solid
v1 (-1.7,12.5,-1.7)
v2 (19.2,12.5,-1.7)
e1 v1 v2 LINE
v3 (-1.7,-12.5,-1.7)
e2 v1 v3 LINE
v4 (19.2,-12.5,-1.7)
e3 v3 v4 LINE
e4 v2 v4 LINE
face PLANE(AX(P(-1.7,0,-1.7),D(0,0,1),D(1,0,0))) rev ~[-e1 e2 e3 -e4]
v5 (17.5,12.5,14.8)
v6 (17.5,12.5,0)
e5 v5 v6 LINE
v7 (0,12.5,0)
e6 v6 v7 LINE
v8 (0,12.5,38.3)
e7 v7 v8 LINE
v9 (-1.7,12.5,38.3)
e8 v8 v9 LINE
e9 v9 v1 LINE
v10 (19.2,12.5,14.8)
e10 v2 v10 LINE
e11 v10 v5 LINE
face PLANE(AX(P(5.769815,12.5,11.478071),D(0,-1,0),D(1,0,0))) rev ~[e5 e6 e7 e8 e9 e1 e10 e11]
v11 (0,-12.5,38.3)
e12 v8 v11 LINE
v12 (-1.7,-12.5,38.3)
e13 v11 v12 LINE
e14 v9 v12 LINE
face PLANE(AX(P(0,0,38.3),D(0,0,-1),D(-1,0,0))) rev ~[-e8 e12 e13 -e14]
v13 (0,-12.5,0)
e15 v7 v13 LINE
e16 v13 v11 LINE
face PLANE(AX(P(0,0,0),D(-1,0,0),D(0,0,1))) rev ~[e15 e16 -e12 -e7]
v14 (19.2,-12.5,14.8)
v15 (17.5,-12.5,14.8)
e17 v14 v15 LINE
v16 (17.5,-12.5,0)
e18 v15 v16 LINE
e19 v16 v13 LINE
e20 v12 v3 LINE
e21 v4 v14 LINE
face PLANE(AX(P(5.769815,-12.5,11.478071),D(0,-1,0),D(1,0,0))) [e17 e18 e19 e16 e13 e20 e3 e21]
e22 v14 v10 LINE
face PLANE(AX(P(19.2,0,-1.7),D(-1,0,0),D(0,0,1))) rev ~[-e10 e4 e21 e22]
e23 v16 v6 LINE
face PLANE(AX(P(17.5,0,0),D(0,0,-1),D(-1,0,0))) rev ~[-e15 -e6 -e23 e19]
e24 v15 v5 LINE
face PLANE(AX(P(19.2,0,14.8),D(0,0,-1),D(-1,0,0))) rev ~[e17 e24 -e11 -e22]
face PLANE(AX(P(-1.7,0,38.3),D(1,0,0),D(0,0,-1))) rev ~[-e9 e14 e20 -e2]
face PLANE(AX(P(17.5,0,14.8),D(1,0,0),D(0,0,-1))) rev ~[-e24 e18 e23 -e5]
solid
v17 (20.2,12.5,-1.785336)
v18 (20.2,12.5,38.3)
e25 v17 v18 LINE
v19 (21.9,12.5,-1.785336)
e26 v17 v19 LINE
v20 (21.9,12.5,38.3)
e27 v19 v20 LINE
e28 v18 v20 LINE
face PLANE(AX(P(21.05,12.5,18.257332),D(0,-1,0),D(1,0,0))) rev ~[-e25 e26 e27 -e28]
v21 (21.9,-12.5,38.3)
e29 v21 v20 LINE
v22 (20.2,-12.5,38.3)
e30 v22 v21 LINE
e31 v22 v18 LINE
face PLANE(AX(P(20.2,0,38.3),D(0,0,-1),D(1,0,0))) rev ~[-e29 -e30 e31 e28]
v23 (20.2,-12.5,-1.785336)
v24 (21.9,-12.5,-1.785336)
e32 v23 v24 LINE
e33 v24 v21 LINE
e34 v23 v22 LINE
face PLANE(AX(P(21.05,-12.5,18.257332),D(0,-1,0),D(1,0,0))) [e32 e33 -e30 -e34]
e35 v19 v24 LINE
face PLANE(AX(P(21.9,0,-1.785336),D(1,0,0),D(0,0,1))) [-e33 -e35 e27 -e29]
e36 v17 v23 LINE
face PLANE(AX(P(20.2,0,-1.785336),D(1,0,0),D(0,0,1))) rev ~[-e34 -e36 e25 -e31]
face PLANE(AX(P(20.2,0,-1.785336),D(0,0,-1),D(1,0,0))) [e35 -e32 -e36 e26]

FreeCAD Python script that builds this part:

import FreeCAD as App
import Part
import Sketcher


def add_polygon(sketch, points):
    """Adds a closed chain of lines whose ends are joined by coincident constraints."""
    first, n = sketch.GeometryCount, len(points)
    for a, b in zip(points, points[1:] + points[:1]):
        sketch.addGeometry(Part.LineSegment(App.Vector(*a, 0), App.Vector(*b, 0)), False)
    for i in range(n):
        sketch.addConstraint(Sketcher.Constraint("Coincident", first + i, 2, first + (i + 1) % n, 1))

doc = App.newDocument("Part")
body = doc.addObject("PartDesign::Body", "Body")
body.AllowCompound = True

# Sketch on XZ plane
sketch1 = body.newObject("Sketcher::SketchObject", "Sketch")
sketch1.AttachmentSupport = (doc.getObject("XZ_Plane"), [""])
sketch1.MapMode = "FlatFace"
add_polygon(sketch1, [(17.5, 0), (0, 0), (0, 38.3), (-1.7, 38.3), (-1.7, -1.7), (19.2, -1.7), (19.2, 14.8), (17.5, 14.8)])  # lines 0-7
add_polygon(sketch1, [(20.2, 38.3), (20.2, -1.8), (21.9, -1.8), (21.9, 38.3)])  # lines 8-11
sketch1.addConstraint([
    Sketcher.Constraint("Horizontal", 0),
    Sketcher.Constraint("Vertical", 1),
    Sketcher.Constraint("Horizontal", 2),
    Sketcher.Constraint("Vertical", 3),
    Sketcher.Constraint("Horizontal", 4),
    Sketcher.Constraint("Vertical", 5),
    Sketcher.Constraint("Horizontal", 6),
    Sketcher.Constraint("Vertical", 7),
    Sketcher.Constraint("Vertical", 8),
    Sketcher.Constraint("Horizontal", 9),
    Sketcher.Constraint("Vertical", 10),
    Sketcher.Constraint("Horizontal", 11),
    Sketcher.Constraint("Coincident", 0, 2, -1, 1),
    Sketcher.Constraint("Horizontal", 2, 2, 10, 2),
    Sketcher.Constraint("Equal", 2, 6),
    Sketcher.Constraint("Equal", 6, 9),
    Sketcher.Constraint("DistanceY", 3, 2, 3, 1, 40.0),
    Sketcher.Constraint("DistanceX", 0, 2, 0, 1, 17.5),
    Sketcher.Constraint("DistanceX", 2, 2, 2, 1, 1.7),
    Sketcher.Constraint("DistanceY", 1, 1, 1, 2, 38.3),
    Sketcher.Constraint("DistanceY", 5, 1, 5, 2, 16.5),
    Sketcher.Constraint("DistanceX", 4, 2, 8, 2, 1.0),
    Sketcher.Constraint("DistanceY", 8, 2, 8, 1, 40.085336),
])
pad1 = body.newObject("PartDesign::Pad", "Pad")
pad1.Profile = sketch1
pad1.Length = 25
pad1.Midplane = True

doc.recompute()
